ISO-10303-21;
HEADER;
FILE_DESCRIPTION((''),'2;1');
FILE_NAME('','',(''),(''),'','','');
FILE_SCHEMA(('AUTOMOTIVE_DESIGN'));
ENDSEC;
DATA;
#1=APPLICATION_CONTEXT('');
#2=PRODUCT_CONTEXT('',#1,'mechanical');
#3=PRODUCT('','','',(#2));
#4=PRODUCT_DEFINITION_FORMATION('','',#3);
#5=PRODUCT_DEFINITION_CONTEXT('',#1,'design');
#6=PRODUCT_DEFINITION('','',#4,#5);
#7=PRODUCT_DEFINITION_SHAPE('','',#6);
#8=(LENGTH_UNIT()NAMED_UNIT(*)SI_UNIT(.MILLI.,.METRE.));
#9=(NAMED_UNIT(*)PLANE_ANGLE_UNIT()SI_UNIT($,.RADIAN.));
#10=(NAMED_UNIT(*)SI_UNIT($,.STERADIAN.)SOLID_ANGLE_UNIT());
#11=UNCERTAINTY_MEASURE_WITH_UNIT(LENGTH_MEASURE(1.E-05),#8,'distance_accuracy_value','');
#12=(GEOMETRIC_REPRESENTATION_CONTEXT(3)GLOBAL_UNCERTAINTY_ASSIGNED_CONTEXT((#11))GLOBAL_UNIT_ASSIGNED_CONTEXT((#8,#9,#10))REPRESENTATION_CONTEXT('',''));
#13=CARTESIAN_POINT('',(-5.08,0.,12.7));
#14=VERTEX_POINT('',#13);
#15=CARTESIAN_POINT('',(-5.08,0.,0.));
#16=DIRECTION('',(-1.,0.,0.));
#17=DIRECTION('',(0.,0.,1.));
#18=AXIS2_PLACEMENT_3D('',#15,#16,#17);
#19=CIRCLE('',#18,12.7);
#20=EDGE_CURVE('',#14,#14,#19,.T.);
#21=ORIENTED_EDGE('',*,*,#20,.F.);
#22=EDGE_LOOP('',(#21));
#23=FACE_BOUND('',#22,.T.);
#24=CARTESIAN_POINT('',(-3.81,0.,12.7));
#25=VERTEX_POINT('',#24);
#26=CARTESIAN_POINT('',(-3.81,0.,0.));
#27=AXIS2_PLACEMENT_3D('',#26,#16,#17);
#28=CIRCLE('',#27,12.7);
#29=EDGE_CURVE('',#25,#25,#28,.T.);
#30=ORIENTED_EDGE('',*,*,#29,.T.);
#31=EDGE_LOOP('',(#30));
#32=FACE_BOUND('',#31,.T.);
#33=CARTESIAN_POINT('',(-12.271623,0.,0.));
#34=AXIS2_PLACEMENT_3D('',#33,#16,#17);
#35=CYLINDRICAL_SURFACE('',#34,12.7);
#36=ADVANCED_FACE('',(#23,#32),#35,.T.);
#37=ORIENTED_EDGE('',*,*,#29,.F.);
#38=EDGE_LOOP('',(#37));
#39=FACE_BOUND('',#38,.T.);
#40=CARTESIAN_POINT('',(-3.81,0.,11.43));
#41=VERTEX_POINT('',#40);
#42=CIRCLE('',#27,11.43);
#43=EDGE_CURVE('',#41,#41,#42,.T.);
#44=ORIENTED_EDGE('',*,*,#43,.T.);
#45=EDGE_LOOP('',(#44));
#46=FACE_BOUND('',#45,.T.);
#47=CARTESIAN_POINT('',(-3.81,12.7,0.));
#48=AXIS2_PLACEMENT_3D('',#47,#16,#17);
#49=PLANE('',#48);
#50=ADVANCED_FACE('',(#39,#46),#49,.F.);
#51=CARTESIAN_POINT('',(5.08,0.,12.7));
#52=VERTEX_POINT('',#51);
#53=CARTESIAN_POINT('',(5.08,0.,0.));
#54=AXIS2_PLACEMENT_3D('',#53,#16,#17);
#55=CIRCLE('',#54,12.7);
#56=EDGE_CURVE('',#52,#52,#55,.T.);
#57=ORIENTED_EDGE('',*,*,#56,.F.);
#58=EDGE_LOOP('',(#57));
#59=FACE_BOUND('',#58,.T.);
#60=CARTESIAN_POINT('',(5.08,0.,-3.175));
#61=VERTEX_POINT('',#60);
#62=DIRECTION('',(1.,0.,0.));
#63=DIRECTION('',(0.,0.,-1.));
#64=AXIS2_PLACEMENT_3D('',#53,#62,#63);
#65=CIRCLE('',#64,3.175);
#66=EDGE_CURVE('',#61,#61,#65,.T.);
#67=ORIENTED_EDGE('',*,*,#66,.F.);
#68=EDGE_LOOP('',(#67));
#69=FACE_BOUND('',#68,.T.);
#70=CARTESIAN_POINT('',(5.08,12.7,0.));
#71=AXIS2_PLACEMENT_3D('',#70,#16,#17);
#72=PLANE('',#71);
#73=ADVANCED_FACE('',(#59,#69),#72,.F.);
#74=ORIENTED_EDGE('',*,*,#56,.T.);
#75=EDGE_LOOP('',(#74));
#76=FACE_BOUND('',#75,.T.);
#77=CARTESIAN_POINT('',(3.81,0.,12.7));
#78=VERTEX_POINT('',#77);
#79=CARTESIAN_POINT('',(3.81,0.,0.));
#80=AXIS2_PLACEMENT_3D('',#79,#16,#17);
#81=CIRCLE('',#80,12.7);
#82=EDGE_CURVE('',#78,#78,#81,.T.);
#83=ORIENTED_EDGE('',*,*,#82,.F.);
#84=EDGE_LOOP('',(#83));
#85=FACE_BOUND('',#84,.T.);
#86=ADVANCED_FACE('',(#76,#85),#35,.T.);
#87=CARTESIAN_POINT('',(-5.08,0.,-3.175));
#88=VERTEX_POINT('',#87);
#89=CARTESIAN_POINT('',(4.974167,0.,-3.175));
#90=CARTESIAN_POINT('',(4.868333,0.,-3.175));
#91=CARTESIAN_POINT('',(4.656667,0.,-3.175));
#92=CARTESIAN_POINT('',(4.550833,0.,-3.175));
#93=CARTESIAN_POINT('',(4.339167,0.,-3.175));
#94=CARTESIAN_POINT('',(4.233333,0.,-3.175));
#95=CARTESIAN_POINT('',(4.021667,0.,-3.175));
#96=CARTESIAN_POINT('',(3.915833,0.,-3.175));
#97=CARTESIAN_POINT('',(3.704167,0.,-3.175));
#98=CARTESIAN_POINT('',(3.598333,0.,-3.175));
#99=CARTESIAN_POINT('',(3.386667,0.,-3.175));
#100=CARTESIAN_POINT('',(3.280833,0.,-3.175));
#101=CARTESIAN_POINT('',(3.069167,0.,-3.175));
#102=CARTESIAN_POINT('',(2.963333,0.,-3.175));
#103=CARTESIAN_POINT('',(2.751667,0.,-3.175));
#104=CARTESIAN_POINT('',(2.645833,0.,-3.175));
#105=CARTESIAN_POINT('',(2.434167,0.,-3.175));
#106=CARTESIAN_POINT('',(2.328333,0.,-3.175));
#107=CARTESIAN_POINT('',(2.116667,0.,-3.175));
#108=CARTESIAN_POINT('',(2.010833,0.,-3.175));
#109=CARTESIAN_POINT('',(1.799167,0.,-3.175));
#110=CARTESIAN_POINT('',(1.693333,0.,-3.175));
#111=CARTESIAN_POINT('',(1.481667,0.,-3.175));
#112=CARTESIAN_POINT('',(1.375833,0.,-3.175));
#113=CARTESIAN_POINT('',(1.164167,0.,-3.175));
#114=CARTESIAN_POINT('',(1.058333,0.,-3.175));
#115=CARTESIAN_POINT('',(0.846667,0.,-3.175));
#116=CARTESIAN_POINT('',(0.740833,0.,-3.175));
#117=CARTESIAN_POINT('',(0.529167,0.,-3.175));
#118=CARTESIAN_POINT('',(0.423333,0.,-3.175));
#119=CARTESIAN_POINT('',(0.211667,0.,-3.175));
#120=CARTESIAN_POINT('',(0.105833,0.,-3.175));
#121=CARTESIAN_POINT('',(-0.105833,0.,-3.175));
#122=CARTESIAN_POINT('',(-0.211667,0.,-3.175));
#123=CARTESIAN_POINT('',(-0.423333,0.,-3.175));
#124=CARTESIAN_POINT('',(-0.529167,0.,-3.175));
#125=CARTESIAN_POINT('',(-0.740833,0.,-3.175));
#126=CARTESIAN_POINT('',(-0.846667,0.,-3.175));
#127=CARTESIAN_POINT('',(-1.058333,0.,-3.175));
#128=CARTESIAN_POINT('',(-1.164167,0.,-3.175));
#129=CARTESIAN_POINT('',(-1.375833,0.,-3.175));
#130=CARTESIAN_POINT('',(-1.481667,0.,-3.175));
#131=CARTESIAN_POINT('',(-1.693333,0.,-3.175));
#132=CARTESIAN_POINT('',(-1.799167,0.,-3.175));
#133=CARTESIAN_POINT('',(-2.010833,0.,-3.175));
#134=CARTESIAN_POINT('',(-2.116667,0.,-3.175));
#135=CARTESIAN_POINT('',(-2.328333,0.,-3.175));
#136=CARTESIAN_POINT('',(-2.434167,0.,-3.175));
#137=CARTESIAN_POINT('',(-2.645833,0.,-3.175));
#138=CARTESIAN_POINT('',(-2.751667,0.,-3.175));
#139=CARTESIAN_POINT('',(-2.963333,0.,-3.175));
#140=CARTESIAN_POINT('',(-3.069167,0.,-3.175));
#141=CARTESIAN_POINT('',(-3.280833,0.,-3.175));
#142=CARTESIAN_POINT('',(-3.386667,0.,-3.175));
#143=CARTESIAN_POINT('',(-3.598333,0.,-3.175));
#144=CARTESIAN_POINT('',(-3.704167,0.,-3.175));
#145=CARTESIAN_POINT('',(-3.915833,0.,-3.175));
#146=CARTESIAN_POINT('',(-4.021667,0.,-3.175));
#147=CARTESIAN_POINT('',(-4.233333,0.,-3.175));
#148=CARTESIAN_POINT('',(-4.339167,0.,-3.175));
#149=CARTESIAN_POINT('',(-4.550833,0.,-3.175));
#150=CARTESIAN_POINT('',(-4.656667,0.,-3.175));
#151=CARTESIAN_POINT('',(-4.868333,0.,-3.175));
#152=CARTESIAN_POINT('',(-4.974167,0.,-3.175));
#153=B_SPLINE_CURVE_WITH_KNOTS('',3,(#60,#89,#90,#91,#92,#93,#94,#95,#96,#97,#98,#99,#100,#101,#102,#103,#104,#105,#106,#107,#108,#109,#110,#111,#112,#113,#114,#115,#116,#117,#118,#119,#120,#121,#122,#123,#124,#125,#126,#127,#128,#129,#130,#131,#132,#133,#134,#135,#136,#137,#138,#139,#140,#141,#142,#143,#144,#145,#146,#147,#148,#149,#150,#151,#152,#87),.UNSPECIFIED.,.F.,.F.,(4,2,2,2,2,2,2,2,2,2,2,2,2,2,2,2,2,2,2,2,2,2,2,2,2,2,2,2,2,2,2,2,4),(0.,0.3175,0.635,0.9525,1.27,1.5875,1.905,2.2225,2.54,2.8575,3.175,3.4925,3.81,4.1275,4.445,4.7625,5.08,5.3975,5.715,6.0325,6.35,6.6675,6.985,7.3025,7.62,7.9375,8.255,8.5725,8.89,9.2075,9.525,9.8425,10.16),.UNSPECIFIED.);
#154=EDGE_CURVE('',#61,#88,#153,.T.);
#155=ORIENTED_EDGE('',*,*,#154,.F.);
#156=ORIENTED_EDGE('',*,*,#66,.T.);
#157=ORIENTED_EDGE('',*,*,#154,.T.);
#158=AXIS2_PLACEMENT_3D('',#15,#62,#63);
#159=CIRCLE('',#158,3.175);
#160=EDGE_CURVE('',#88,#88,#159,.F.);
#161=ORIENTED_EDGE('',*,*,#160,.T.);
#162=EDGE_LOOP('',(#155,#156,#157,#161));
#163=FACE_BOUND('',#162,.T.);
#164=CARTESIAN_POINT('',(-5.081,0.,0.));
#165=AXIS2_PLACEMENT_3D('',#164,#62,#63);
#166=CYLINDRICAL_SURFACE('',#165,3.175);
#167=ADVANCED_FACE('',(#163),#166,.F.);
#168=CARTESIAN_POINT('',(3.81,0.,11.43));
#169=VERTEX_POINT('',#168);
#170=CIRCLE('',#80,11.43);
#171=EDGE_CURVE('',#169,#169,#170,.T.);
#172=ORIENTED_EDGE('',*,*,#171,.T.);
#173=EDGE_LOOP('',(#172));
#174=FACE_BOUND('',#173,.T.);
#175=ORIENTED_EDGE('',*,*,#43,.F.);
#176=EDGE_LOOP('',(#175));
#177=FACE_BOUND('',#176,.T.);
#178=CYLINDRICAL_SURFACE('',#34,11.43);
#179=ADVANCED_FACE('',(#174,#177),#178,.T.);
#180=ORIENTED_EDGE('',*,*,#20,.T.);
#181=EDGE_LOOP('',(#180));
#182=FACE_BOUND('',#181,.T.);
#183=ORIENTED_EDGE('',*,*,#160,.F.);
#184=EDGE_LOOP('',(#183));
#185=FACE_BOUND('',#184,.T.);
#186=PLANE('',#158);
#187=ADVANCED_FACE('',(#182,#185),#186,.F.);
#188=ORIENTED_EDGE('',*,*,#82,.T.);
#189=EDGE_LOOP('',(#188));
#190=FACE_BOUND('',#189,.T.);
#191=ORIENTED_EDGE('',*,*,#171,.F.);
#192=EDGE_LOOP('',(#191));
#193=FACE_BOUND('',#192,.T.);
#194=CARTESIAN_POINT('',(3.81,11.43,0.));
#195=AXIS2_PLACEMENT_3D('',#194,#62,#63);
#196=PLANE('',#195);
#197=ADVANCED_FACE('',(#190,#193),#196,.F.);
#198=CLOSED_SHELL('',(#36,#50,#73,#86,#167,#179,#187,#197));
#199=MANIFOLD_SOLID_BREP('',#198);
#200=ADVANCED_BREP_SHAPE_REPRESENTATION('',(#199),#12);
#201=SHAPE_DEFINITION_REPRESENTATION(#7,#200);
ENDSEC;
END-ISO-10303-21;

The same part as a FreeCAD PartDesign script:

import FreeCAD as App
import Part
import Sketcher
Q = App.Units.Quantity


def add_polygon(sketch, points):
    """Adds a closed chain of lines whose ends are joined by coincident constraints."""
    first, n = sketch.GeometryCount, len(points)
    for a, b in zip(points, points[1:] + points[:1]):
        sketch.addGeometry(Part.LineSegment(App.Vector(*a, 0), App.Vector(*b, 0)), False)
    for i in range(n):
        sketch.addConstraint(Sketcher.Constraint("Coincident", first + i, 2, first + (i + 1) % n, 1))

doc = App.newDocument("Part")
body = doc.addObject("PartDesign::Body", "Body")

sketch1 = body.newObject("Sketcher::SketchObject", "Sketch")
sketch1.AttachmentSupport = (doc.getObject("XY_Plane"), [""])
sketch1.MapMode = "FlatFace"
add_polygon(sketch1, [(-5.1, 0), (5.1, 0), (5.1, 12.7), (3.8, 12.7), (3.8, 11.4), (-3.8, 11.4), (-3.8, 12.7), (-5.1, 12.7)])
sketch1.addConstraint([
    Sketcher.Constraint("Horizontal", 0),
    Sketcher.Constraint("Vertical", 1),
    Sketcher.Constraint("Horizontal", 2),
    Sketcher.Constraint("Vertical", 3),
    Sketcher.Constraint("Horizontal", 4),
    Sketcher.Constraint("Vertical", 5),
    Sketcher.Constraint("Horizontal", 6),
    Sketcher.Constraint("Vertical", 7),
    Sketcher.Constraint("Symmetric", 0, 2, 7, 2, -1, 1),
    Sketcher.Constraint("Symmetric", 2, 2, 5, 2, -2),
    Sketcher.Constraint("Equal", 6, 3),
    Sketcher.Constraint("DistanceX", 0, 1, 0, 2, Q("0.4 in")),
    Sketcher.Constraint("DistanceX", 4, 2, 4, 1, Q("0.3 in")),
    Sketcher.Constraint("DistanceY", 1, 1, 1, 2, Q("0.5 in")),
])
revolution = body.newObject("PartDesign::Revolution", "Revolution")
revolution.Profile = sketch1
revolution.ReferenceAxis = (sketch1, ["H_Axis"])
revolution.Angle = 360

sketch2 = body.newObject("Sketcher::SketchObject", "Sketch001")
sketch2.AttachmentSupport = (doc.getObject("YZ_Plane"), [""])
sketch2.MapMode = "FlatFace"
sketch2.AttachmentOffset = App.Placement(App.Vector(0, 0, 0.2 * 25.4), App.Rotation())
sketch2.addGeometry(Part.Circle(App.Vector(0, 0, 0), App.Vector(0, 0, 1), 3.2), False)
sketch2.addConstraint([
    Sketcher.Constraint("Coincident", 0, 3, -1, 1),
    Sketcher.Constraint("Diameter", 0, Q("0.25 in")),
])
pocket1 = body.newObject("PartDesign::Pocket", "Pocket")
pocket1.Profile = sketch2
pocket1.Type = "UpToFirst"

doc.recompute()
